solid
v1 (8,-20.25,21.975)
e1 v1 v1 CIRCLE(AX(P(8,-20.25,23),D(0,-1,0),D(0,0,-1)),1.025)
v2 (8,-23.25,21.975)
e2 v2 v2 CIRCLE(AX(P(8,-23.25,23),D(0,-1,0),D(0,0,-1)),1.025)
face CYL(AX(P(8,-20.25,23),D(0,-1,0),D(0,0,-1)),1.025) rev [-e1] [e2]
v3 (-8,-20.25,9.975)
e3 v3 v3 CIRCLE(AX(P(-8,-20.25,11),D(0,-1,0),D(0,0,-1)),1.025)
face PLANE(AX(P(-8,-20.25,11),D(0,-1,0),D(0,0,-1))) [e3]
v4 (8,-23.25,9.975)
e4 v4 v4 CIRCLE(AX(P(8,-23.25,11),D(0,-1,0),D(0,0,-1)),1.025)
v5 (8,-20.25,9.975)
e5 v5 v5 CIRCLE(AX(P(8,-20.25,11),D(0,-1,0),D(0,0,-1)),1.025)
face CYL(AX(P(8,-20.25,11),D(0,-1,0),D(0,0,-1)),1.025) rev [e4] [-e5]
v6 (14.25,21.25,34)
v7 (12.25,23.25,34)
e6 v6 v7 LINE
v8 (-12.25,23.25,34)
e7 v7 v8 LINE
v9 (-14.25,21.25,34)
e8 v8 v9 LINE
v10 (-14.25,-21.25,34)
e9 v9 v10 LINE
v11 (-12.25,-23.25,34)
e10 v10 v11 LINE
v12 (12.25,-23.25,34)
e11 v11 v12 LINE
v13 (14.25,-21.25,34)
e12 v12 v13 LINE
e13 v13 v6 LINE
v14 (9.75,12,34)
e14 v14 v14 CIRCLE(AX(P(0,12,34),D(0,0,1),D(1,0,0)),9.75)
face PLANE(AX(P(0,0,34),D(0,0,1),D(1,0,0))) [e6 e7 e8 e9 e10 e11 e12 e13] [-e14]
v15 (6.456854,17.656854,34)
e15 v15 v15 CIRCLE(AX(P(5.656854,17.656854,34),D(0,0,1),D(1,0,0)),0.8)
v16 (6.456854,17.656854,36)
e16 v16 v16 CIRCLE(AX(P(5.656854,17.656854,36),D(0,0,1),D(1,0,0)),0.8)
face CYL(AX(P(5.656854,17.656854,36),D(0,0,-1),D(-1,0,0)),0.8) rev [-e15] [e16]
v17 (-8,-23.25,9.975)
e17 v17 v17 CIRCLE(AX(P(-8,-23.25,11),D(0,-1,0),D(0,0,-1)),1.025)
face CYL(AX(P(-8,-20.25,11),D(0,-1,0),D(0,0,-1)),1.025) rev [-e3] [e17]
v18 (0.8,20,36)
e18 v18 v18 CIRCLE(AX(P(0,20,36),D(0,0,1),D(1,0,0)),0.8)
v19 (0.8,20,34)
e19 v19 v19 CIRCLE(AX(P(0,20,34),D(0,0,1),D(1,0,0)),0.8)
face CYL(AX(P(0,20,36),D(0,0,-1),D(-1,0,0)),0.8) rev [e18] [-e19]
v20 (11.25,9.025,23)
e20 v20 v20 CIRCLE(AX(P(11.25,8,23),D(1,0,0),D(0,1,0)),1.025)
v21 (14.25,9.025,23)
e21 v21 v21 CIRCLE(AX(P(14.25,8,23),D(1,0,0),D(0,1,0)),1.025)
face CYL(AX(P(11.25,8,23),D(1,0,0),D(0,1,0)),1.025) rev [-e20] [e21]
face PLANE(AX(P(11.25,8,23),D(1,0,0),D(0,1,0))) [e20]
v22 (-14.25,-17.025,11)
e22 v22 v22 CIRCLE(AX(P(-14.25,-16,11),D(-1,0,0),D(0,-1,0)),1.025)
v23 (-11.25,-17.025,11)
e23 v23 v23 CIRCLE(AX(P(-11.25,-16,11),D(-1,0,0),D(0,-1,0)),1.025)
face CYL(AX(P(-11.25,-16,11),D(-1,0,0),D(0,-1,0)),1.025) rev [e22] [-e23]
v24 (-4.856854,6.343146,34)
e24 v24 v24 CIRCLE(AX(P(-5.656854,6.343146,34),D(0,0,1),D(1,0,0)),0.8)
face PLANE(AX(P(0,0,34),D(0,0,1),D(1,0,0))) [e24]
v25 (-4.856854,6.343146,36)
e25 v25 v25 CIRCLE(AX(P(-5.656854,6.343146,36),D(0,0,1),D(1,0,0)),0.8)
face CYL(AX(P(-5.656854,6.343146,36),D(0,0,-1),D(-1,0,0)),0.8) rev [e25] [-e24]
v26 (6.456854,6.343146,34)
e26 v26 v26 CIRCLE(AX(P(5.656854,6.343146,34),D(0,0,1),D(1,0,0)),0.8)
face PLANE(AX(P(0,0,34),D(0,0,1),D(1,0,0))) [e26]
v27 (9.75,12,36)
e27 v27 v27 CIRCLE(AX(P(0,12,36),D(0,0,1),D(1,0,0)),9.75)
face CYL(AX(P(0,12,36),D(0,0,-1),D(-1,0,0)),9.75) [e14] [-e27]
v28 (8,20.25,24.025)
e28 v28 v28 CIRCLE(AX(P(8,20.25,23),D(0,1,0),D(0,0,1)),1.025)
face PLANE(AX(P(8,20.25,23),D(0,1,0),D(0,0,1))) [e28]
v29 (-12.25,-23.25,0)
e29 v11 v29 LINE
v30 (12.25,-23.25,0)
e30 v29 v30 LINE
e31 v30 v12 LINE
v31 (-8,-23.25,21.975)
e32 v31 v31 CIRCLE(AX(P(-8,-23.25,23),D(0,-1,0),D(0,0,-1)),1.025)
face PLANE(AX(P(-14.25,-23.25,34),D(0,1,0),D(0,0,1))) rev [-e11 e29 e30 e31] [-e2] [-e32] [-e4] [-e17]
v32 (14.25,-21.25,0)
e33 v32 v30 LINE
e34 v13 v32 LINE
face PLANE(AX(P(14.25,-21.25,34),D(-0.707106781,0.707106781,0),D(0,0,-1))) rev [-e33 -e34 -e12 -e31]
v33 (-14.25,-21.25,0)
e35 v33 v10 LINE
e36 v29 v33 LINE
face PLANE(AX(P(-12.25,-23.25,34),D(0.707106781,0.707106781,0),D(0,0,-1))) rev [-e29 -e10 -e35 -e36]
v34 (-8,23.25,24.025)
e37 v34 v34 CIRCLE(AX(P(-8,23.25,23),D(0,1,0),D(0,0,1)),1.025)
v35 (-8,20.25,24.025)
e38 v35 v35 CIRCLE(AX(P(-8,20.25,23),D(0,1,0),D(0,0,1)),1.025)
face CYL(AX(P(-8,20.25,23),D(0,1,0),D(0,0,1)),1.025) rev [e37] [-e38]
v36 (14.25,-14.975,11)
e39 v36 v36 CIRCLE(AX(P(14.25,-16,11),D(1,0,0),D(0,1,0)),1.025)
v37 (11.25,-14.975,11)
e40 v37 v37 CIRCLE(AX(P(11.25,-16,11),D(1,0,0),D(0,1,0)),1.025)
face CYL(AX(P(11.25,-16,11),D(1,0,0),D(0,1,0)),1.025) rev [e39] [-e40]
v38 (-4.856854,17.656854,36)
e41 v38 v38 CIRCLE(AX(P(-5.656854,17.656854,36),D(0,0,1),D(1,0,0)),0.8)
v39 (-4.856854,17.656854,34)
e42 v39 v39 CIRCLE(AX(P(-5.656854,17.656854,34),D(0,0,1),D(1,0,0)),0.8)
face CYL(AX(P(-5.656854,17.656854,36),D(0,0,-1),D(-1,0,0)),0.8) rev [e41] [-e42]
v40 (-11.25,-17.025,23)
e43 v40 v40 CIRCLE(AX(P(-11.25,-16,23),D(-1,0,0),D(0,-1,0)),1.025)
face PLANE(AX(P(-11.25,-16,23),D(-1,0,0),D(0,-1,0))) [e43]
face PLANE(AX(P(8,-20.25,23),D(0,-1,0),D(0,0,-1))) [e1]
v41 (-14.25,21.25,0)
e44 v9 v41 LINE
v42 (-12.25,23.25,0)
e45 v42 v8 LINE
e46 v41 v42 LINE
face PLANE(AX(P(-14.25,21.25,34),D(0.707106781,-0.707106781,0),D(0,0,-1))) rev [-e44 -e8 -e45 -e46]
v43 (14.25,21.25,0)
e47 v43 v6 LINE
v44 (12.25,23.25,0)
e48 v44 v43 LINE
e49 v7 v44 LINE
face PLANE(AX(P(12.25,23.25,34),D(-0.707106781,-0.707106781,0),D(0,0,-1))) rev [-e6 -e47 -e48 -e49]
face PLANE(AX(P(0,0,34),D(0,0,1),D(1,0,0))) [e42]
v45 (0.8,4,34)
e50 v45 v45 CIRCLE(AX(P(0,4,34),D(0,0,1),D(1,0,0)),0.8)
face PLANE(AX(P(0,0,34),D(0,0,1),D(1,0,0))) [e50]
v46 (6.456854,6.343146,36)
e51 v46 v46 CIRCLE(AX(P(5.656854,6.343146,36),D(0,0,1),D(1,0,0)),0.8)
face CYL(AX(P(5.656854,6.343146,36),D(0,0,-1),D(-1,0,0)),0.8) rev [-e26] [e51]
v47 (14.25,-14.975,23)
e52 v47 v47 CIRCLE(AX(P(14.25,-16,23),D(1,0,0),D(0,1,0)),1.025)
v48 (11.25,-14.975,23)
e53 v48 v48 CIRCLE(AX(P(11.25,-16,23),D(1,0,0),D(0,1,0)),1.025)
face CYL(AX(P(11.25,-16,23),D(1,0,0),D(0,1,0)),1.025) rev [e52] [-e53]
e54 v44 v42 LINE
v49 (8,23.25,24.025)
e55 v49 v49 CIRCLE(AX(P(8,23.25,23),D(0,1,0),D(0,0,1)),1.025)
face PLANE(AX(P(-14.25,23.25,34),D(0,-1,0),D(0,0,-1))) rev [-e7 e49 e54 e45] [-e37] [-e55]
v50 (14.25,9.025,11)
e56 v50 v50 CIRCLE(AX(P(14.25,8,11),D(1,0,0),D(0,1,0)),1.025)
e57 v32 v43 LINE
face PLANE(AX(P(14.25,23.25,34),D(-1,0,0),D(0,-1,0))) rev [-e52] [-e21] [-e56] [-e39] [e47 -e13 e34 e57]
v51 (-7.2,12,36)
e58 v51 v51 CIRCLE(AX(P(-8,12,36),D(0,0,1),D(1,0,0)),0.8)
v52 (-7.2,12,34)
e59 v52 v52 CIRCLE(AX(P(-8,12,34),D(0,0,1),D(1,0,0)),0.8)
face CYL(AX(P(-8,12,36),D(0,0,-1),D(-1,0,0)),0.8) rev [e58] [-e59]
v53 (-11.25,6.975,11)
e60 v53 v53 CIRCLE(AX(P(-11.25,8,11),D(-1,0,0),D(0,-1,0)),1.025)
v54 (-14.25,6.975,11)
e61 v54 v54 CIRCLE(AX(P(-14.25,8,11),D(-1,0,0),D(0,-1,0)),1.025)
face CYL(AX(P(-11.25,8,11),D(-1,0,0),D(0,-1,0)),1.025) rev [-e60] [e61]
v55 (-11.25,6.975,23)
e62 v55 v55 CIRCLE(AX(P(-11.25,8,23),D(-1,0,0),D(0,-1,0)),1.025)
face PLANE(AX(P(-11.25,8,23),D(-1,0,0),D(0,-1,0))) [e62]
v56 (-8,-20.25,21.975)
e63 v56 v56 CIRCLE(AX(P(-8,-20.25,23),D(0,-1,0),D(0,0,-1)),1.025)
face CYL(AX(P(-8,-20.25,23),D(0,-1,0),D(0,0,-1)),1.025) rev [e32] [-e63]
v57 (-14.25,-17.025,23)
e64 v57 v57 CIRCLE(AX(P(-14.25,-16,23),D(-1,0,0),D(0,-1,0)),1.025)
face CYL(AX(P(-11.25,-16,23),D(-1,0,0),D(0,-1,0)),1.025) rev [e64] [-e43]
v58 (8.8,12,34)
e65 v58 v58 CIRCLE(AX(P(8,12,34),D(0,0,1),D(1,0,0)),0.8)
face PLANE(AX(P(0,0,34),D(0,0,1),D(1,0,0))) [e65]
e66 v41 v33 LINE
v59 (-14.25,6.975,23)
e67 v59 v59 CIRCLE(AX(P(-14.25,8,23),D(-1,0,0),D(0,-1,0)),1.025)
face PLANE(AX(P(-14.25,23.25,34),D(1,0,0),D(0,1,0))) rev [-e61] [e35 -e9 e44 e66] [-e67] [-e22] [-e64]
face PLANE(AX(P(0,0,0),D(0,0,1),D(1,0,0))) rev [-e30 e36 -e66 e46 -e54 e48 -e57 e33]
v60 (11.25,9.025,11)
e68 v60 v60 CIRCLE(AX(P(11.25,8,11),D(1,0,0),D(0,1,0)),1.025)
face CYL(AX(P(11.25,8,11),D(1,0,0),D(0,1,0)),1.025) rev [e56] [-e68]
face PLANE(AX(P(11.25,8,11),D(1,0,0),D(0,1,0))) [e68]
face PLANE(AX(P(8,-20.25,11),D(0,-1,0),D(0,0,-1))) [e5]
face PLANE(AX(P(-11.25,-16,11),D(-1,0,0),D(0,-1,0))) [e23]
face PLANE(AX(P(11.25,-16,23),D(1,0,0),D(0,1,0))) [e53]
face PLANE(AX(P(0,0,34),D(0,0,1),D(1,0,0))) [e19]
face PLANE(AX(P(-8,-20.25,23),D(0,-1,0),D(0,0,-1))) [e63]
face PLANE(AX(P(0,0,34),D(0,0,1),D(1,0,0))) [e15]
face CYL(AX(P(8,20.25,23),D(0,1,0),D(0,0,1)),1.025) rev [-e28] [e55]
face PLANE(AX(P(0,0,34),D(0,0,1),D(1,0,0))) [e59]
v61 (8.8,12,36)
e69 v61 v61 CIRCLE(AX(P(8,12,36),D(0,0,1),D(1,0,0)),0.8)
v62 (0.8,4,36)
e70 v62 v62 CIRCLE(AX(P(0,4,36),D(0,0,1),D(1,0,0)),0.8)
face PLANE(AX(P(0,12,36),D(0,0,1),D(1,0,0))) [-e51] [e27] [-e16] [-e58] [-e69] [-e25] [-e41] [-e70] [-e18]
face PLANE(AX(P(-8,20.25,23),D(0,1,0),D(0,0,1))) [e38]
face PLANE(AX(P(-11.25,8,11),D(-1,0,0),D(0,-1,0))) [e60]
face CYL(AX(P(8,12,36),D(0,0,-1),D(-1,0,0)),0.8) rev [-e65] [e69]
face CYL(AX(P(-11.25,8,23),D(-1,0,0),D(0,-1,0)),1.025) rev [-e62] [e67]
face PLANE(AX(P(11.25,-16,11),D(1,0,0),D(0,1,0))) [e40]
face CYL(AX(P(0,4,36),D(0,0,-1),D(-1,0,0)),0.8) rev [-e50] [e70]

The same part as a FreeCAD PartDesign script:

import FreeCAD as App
import Part
import Sketcher
from FreeCAD import Vector


def edges_at(feature, points):
    """Names of the edges that pass closest to the given points."""
    edges = feature.Shape.Edges
    near = lambda p: min(range(len(edges)), key=lambda i: edges[i].distToShape(Part.Vertex(*p))[0])
    return sorted({f"Edge{near(p) + 1}" for p in points})


def add_polygon(sketch, points):
    """Adds a closed chain of lines whose ends are joined by coincident constraints."""
    first, n = sketch.GeometryCount, len(points)
    for a, b in zip(points, points[1:] + points[:1]):
        sketch.addGeometry(Part.LineSegment(App.Vector(*a, 0), App.Vector(*b, 0)), False)
    for i in range(n):
        sketch.addConstraint(Sketcher.Constraint("Coincident", first + i, 2, first + (i + 1) % n, 1))

doc = App.newDocument("Part")
params = doc.addObject("Spreadsheet::Sheet", "Params")
for row, (alias, value) in enumerate([
    ("sketch1_width", "28.5 mm"),
    ("sketch1_height", "46.5 mm"),
    ("pad1_length", "34 mm"),
    ("sketch2_diameter", "19.5 mm"),
    ("sketch2_diameter2", "1.6 mm"),
    ("pad2_length", "2 mm"),
    ("sketch3_diameter", "2.05 mm"),
    ("pocket1_length", "3 mm"),
    ("sketch4_diameter", "2.05 mm"),
    ("pocket2_length", "3 mm"),
    ("sketch5_diameter", "2.05 mm"),
    ("pocket3_length", "3 mm"),
    ("sketch6_diameter", "2.05 mm"),
    ("pocket4_length", "3 mm"),
    ("chamfer_size", "2 mm"),
], start=1):
    params.set(f"A{row}", alias)
    params.set(f"B{row}", "=" + value)
    params.setAlias(f"B{row}", alias)

body = doc.addObject("PartDesign::Body", "Body")

sketch1 = body.newObject("Sketcher::SketchObject", "Sketch")
sketch1.AttachmentSupport = (doc.getObject("XY_Plane"), [""])
sketch1.MapMode = "FlatFace"
add_polygon(sketch1, [(-14.25, 23.25), (-14.25, -23.25), (14.25, -23.25), (14.25, 23.25)])
sketch1.addConstraint([
    Sketcher.Constraint("Vertical", 0),
    Sketcher.Constraint("Horizontal", 1),
    Sketcher.Constraint("Vertical", 2),
    Sketcher.Constraint("Horizontal", 3),
    Sketcher.Constraint("Symmetric", 0, 2, 2, 2, -1, 1),
    Sketcher.Constraint("DistanceX", 1, 1, 1, 2, 28.5),
    Sketcher.Constraint("DistanceY", 0, 2, 0, 1, 46.5),
])
sketch1.setExpression("Constraints[9]", "Params.sketch1_width")
sketch1.setExpression("Constraints[10]", "Params.sketch1_height")
pad1 = body.newObject("PartDesign::Pad", "Pad")
pad1.Profile = sketch1
pad1.setExpression("Length", "Params.pad1_length")

sketch2 = body.newObject("Sketcher::SketchObject", "Sketch001")
sketch2.AttachmentSupport = (doc.getObject("XY_Plane"), [""])
sketch2.MapMode = "FlatFace"
sketch2.AttachmentOffset = App.Placement(Vector(0, 0, 34), App.Rotation())
sketch2.addGeometry([
    Part.Circle(Vector(0, 12, 0), Vector(0, 0, 1), 9.75),
    Part.Circle(Vector(-5.656854, 6.343146, 0), Vector(0, 0, 1), 0.8),
    Part.Circle(Vector(0, 4, 0), Vector(0, 0, 1), 0.8),
    Part.Circle(Vector(5.656854, 6.343146, 0), Vector(0, 0, 1), 0.8),
    Part.Circle(Vector(-8, 12, 0), Vector(0, 0, 1), 0.8),
    Part.Circle(Vector(-5.656854, 17.656854, 0), Vector(0, 0, 1), 0.8),
    Part.Circle(Vector(8, 12, 0), Vector(0, 0, 1), 0.8),
    Part.Circle(Vector(0, 20, 0), Vector(0, 0, 1), 0.8),
    Part.Circle(Vector(5.656854, 17.656854, 0), Vector(0, 0, 1), 0.8),
], False)
sketch2.addConstraint([
    Sketcher.Constraint("Equal", 1, 2),
    Sketcher.Constraint("Equal", 2, 3),
    Sketcher.Constraint("Equal", 3, 4),
    Sketcher.Constraint("Equal", 4, 5),
    Sketcher.Constraint("Equal", 5, 6),
    Sketcher.Constraint("Equal", 6, 7),
    Sketcher.Constraint("Equal", 7, 8),
    Sketcher.Constraint("Symmetric", 1, 3, 3, 3, -2),
    Sketcher.Constraint("Symmetric", 4, 3, 6, 3, -2),
    Sketcher.Constraint("Symmetric", 5, 3, 8, 3, -2),
    Sketcher.Constraint("PointOnObject", 0, 3, -2),
    Sketcher.Constraint("PointOnObject", 2, 3, -2),
    Sketcher.Constraint("PointOnObject", 7, 3, -2),
    Sketcher.Constraint("Horizontal", 0, 3, 4, 3),
    Sketcher.Constraint("Vertical", 1, 3, 5, 3),
    Sketcher.Constraint("Diameter", 0, 19.5),
    Sketcher.Constraint("Diameter", 1, 1.6),
    Sketcher.Constraint("DistanceY", -1, 1, 0, 3, 12.0),
    Sketcher.Constraint("DistanceY", -1, 1, 2, 3, 4.0),
    Sketcher.Constraint("DistanceX", 4, 3, -1, 1, 8.0),
    Sketcher.Constraint("DistanceY", -1, 1, 7, 3, 20.0),
    Sketcher.Constraint("DistanceX", 1, 3, 3, 3, 11.313708),
    Sketcher.Constraint("DistanceY", 1, 3, 5, 3, 11.313708),
    Sketcher.Constraint("DistanceY", -1, 1, 1, 3, 6.343146),
])
sketch2.setExpression("Constraints[15]", "Params.sketch2_diameter")
sketch2.setExpression("Constraints[16]", "Params.sketch2_diameter2")
pad2 = body.newObject("PartDesign::Pad", "Pad001")
pad2.Profile = sketch2
pad2.setExpression("Length", "Params.pad2_length")

sketch3 = body.newObject("Sketcher::SketchObject", "Sketch002")
sketch3.AttachmentSupport = (doc.getObject("XZ_Plane"), [""])
sketch3.MapMode = "FlatFace"
sketch3.AttachmentOffset = App.Placement(Vector(0, 0, -23.25), App.Rotation())
sketch3.addGeometry([
    Part.Circle(Vector(-8, 23, 0), Vector(0, 0, 1), 1.025),
    Part.Circle(Vector(8, 23, 0), Vector(0, 0, 1), 1.025),
], False)
sketch3.addConstraint([
    Sketcher.Constraint("Equal", 0, 1),
    Sketcher.Constraint("Symmetric", 0, 3, 1, 3, -2),
    Sketcher.Constraint("Diameter", 0, 2.05),
    Sketcher.Constraint("DistanceX", 0, 3, -1, 1, 8.0),
    Sketcher.Constraint("DistanceY", -1, 1, 0, 3, 23.0),
])
sketch3.setExpression("Constraints[2]", "Params.sketch3_diameter")
pocket1 = body.newObject("PartDesign::Pocket", "Pocket")
pocket1.Profile = sketch3
pocket1.setExpression("Length", "Params.pocket1_length")
pocket1.Reversed = True

sketch4 = body.newObject("Sketcher::SketchObject", "Sketch003")
sketch4.AttachmentSupport = (doc.getObject("YZ_Plane"), [""])
sketch4.MapMode = "FlatFace"
sketch4.AttachmentOffset = App.Placement(Vector(0, 0, -14.25), App.Rotation())
sketch4.addGeometry([
    Part.Circle(Vector(8, 23, 0), Vector(0, 0, 1), 1.025),
    Part.Circle(Vector(8, 11, 0), Vector(0, 0, 1), 1.025),
    Part.Circle(Vector(-16, 23, 0), Vector(0, 0, 1), 1.025),
    Part.Circle(Vector(-16, 11, 0), Vector(0, 0, 1), 1.025),
], False)
sketch4.addConstraint([
    Sketcher.Constraint("Equal", 0, 1),
    Sketcher.Constraint("Equal", 1, 2),
    Sketcher.Constraint("Equal", 2, 3),
    Sketcher.Constraint("Horizontal", 0, 3, 2, 3),
    Sketcher.Constraint("Horizontal", 1, 3, 3, 3),
    Sketcher.Constraint("Vertical", 0, 3, 1, 3),
    Sketcher.Constraint("Vertical", 2, 3, 3, 3),
    Sketcher.Constraint("Diameter", 0, 2.05),
    Sketcher.Constraint("DistanceX", -1, 1, 0, 3, 8.0),
    Sketcher.Constraint("DistanceY", -1, 1, 0, 3, 23.0),
    Sketcher.Constraint("DistanceY", -1, 1, 1, 3, 11.0),
    Sketcher.Constraint("DistanceX", 2, 3, -1, 1, 16.0),
])
sketch4.setExpression("Constraints[7]", "Params.sketch4_diameter")
pocket2 = body.newObject("PartDesign::Pocket", "Pocket001")
pocket2.Profile = sketch4
pocket2.setExpression("Length", "Params.pocket2_length")
pocket2.Reversed = True

sketch5 = body.newObject("Sketcher::SketchObject", "Sketch004")
sketch5.AttachmentSupport = (doc.getObject("YZ_Plane"), [""])
sketch5.MapMode = "FlatFace"
sketch5.AttachmentOffset = App.Placement(Vector(0, 0, 11.25), App.Rotation())
sketch5.addGeometry([
    Part.Circle(Vector(-16, 11, 0), Vector(0, 0, 1), 1.025),
    Part.Circle(Vector(-16, 23, 0), Vector(0, 0, 1), 1.025),
    Part.Circle(Vector(8, 23, 0), Vector(0, 0, 1), 1.025),
    Part.Circle(Vector(8, 11, 0), Vector(0, 0, 1), 1.025),
], False)
sketch5.addConstraint([
    Sketcher.Constraint("Equal", 0, 1),
    Sketcher.Constraint("Equal", 1, 2),
    Sketcher.Constraint("Equal", 2, 3),
    Sketcher.Constraint("Horizontal", 1, 3, 2, 3),
    Sketcher.Constraint("Horizontal", 0, 3, 3, 3),
    Sketcher.Constraint("Vertical", 0, 3, 1, 3),
    Sketcher.Constraint("Vertical", 2, 3, 3, 3),
    Sketcher.Constraint("Diameter", 0, 2.05),
    Sketcher.Constraint("DistanceX", 0, 3, -1, 1, 16.0),
    Sketcher.Constraint("DistanceY", -1, 1, 0, 3, 11.0),
    Sketcher.Constraint("DistanceY", -1, 1, 1, 3, 23.0),
    Sketcher.Constraint("DistanceX", -1, 1, 2, 3, 8.0),
])
sketch5.setExpression("Constraints[7]", "Params.sketch5_diameter")
pocket3 = body.newObject("PartDesign::Pocket", "Pocket002")
pocket3.Profile = sketch5
pocket3.setExpression("Length", "Params.pocket3_length")
pocket3.Reversed = True

sketch6 = body.newObject("Sketcher::SketchObject", "Sketch005")
sketch6.AttachmentSupport = (doc.getObject("XZ_Plane"), [""])
sketch6.MapMode = "FlatFace"
sketch6.AttachmentOffset = App.Placement(Vector(0, 0, 20.25), App.Rotation())
sketch6.addGeometry([
    Part.Circle(Vector(-8, 23, 0), Vector(0, 0, 1), 1.025),
    Part.Circle(Vector(8, 23, 0), Vector(0, 0, 1), 1.025),
    Part.Circle(Vector(-8, 11, 0), Vector(0, 0, 1), 1.025),
    Part.Circle(Vector(8, 11, 0), Vector(0, 0, 1), 1.025),
], False)
sketch6.addConstraint([
    Sketcher.Constraint("Equal", 0, 1),
    Sketcher.Constraint("Equal", 1, 2),
    Sketcher.Constraint("Equal", 2, 3),
    Sketcher.Constraint("Symmetric", 0, 3, 1, 3, -2),
    Sketcher.Constraint("Symmetric", 2, 3, 3, 3, -2),
    Sketcher.Constraint("Vertical", 0, 3, 2, 3),
    Sketcher.Constraint("Diameter", 0, 2.05),
    Sketcher.Constraint("DistanceX", 0, 3, -1, 1, 8.0),
    Sketcher.Constraint("DistanceY", -1, 1, 0, 3, 23.0),
    Sketcher.Constraint("DistanceY", -1, 1, 2, 3, 11.0),
])
sketch6.setExpression("Constraints[6]", "Params.sketch6_diameter")
pocket4 = body.newObject("PartDesign::Pocket", "Pocket003")
pocket4.Profile = sketch6
pocket4.setExpression("Length", "Params.pocket4_length")
pocket4.Reversed = True
doc.recompute()

chamfer = body.newObject("PartDesign::Chamfer", "Chamfer")
chamfer.Base = (pocket4, edges_at(pocket4, [
    (-14.25, 23.25, 17),
    (14.25, 23.25, 17),
    (14.25, -23.25, 17),
    (-14.25, -23.25, 17),
]))
chamfer.setExpression("Size", "Params.chamfer_size")

doc.recompute()
